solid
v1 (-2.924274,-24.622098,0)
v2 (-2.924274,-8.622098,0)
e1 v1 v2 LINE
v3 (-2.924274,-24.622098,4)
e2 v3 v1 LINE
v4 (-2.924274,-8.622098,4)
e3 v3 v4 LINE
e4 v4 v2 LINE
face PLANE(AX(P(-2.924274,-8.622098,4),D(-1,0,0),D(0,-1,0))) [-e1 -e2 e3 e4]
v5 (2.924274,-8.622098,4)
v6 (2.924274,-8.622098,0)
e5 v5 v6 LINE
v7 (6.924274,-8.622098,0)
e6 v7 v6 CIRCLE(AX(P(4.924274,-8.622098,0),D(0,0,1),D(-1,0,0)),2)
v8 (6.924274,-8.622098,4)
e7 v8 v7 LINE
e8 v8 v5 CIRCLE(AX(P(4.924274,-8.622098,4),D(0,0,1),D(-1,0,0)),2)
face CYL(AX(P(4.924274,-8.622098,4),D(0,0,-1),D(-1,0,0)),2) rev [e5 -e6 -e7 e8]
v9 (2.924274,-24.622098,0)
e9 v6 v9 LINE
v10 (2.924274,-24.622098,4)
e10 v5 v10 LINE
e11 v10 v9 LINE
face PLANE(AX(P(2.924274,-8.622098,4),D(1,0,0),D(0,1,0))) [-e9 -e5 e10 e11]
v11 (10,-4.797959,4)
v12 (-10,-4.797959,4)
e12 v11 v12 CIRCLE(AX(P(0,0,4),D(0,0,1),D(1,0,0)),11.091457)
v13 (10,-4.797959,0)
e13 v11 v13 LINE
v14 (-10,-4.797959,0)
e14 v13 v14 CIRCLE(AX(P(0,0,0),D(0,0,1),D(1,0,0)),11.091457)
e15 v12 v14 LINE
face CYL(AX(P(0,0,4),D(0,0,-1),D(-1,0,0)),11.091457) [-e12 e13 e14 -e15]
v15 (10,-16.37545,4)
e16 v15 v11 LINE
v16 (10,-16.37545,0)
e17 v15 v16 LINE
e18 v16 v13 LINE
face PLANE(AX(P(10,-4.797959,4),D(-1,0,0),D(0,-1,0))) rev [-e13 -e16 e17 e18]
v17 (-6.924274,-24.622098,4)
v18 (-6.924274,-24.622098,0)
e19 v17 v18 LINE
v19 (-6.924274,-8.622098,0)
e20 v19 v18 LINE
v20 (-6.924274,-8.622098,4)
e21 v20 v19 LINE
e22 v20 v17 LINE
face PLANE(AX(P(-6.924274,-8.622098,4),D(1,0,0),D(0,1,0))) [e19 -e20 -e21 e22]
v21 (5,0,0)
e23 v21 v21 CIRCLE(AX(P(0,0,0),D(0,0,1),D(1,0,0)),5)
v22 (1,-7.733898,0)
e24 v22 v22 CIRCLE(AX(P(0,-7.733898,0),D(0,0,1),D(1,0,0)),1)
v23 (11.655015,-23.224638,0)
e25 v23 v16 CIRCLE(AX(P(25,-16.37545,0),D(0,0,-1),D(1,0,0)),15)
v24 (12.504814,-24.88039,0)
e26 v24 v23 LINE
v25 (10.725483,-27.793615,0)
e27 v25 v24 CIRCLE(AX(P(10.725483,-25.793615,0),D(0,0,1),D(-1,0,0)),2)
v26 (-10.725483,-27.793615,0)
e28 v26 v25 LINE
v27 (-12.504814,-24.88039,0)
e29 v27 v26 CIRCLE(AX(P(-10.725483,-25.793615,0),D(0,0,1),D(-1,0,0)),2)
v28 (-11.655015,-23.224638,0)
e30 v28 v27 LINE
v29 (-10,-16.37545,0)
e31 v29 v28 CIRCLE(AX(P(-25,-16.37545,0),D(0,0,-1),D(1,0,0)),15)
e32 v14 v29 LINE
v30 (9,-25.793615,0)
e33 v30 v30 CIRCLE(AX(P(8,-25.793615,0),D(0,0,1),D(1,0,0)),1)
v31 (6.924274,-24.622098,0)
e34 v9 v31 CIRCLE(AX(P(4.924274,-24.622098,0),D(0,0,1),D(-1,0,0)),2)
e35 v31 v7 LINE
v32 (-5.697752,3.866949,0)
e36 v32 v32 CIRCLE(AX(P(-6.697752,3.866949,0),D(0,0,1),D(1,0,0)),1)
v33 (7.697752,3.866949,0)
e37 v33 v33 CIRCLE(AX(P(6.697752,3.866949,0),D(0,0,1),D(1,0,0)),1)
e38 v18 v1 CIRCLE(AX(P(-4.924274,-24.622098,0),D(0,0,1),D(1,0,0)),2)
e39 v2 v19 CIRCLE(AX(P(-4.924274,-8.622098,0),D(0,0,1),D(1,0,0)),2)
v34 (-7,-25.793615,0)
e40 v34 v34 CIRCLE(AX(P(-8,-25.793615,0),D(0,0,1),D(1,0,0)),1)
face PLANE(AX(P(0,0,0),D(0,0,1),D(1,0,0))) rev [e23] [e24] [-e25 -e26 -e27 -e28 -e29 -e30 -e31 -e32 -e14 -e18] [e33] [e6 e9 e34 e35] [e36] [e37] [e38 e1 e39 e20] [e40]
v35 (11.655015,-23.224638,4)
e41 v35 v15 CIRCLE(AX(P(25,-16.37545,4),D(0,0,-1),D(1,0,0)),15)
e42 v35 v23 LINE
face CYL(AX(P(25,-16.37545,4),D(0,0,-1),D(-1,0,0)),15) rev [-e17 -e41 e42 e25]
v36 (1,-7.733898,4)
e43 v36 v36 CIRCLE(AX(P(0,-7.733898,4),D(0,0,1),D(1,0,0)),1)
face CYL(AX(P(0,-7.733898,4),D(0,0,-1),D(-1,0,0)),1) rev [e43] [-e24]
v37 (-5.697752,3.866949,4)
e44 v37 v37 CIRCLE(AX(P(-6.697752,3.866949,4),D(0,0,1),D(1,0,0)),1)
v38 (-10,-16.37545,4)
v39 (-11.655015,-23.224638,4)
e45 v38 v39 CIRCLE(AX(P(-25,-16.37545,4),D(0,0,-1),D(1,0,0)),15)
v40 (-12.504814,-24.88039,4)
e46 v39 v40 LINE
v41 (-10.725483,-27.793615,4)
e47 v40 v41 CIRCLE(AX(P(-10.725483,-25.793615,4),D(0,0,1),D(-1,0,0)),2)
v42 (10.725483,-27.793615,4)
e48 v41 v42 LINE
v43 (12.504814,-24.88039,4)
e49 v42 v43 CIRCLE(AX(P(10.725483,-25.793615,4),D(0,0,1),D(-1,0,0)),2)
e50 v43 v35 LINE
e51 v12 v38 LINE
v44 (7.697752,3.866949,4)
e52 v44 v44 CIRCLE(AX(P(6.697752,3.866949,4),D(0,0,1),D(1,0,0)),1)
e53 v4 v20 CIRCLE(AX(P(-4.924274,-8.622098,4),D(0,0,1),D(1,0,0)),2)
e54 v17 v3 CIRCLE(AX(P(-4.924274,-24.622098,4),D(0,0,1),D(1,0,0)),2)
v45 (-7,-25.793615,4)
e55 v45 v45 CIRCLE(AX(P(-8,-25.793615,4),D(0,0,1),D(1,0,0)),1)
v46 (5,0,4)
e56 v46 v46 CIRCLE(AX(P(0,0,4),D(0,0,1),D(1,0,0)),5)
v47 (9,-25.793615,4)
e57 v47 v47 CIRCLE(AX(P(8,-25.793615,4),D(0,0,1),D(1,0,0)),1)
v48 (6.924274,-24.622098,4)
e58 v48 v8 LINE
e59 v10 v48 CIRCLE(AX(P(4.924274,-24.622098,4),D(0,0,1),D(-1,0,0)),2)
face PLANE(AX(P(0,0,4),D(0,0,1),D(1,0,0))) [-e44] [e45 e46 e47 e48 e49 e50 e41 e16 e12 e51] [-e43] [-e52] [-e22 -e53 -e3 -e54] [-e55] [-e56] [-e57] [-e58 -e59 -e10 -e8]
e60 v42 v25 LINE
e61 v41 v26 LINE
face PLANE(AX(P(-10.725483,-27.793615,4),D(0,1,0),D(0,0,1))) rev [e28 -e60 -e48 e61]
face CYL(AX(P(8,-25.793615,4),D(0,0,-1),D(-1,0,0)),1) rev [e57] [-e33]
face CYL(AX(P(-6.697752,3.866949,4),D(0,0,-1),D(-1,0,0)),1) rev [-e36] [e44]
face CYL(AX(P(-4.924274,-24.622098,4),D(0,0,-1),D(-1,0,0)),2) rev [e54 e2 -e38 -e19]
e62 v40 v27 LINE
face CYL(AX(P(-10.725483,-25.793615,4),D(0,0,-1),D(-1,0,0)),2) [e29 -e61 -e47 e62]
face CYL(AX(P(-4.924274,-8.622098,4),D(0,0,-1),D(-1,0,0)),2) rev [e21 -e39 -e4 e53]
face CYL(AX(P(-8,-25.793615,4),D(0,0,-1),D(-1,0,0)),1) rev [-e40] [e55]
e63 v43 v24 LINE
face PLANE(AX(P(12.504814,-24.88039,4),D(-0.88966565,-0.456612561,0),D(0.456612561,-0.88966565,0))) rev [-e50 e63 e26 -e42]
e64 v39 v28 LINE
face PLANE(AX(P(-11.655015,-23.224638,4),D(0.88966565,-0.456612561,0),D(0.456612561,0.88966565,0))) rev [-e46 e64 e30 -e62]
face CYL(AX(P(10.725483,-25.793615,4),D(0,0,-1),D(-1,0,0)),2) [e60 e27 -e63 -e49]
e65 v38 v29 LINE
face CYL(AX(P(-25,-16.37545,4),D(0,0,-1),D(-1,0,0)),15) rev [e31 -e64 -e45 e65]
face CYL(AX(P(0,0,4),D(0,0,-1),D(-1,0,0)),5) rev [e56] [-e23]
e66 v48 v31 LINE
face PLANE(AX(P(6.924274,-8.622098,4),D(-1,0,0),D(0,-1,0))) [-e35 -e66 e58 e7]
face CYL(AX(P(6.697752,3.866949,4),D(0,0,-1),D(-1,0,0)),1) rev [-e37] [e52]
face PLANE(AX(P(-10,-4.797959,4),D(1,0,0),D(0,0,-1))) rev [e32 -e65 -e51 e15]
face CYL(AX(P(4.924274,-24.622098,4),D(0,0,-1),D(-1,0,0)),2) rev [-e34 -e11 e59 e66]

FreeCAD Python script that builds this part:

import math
import FreeCAD as App
import Part
import Sketcher

V = App.Vector
Q = App.Units.Quantity

doc = App.newDocument("Part")
body = doc.addObject("PartDesign::Body", "Body")

# Sketch on XY plane
sketch1 = body.newObject("Sketcher::SketchObject", "Sketch")
sketch1.AttachmentSupport = (doc.getObject("XY_Plane"), [""])
sketch1.MapMode = "FlatFace"
sketch1.addGeometry(Part.LineSegment(V(10, -16.37545, 0), V(10, -4.797959, 0)), False)
sketch1.addGeometry(Part.ArcOfCircle(Part.Circle(V(0, 0, 0), V(0, 0, 1), 11.091457), math.radians(-25.631501), math.radians(205.631501)), False)
sketch1.addGeometry(Part.LineSegment(V(-10, -4.797959, 0), V(-10, -16.37545, 0)), False)
sketch1.addGeometry(Part.ArcOfCircle(Part.Circle(V(-25, -16.37545, 0), V(0, 0, 1), 15), math.radians(-27.168737), math.radians(0)), False)
sketch1.addGeometry(Part.LineSegment(V(-11.655015, -23.224638, 0), V(-12.504814, -24.88039, 0)), False)
sketch1.addGeometry(Part.ArcOfCircle(Part.Circle(V(-10.725483, -25.793615, 0), V(0, 0, 1), 2), math.radians(152.831263), math.radians(270)), False)
sketch1.addGeometry(Part.LineSegment(V(-10.725483, -27.793615, 0), V(10.725483, -27.793615, 0)), False)
sketch1.addGeometry(Part.ArcOfCircle(Part.Circle(V(10.725483, -25.793615, 0), V(0, 0, 1), 2), math.radians(-90), math.radians(27.168737)), False)
sketch1.addGeometry(Part.LineSegment(V(12.504814, -24.88039, 0), V(11.655015, -23.224638, 0)), False)
sketch1.addGeometry(Part.ArcOfCircle(Part.Circle(V(25, -16.37545, 0), V(0, 0, 1), 15), math.radians(180), math.radians(207.168737)), False)
sketch1.addGeometry(Part.Circle(V(8, -25.793615, 0), V(0, 0, 1), 1), False)
sketch1.addGeometry(Part.ArcOfCircle(Part.Circle(V(4.924274, -8.622098, 0), V(0, 0, 1), 2), math.radians(0), math.radians(180)), False)
sketch1.addGeometry(Part.LineSegment(V(6.924274, -8.622098, 0), V(6.924274, -24.622098, 0)), False)
sketch1.addGeometry(Part.ArcOfCircle(Part.Circle(V(4.924274, -24.622098, 0), V(0, 0, 1), 2), math.radians(180), math.radians(360)), False)
sketch1.addGeometry(Part.LineSegment(V(2.924274, -24.622098, 0), V(2.924274, -8.622098, 0)), False)
sketch1.addGeometry(Part.Circle(V(-8, -25.793615, 0), V(0, 0, 1), 1), False)
sketch1.addGeometry(Part.LineSegment(V(-2.924274, -8.622098, 0), V(-2.924274, -24.622098, 0)), False)
sketch1.addGeometry(Part.ArcOfCircle(Part.Circle(V(-4.924274, -24.622098, 0), V(0, 0, 1), 2), math.radians(180), math.radians(360)), False)
sketch1.addGeometry(Part.LineSegment(V(-6.924274, -24.622098, 0), V(-6.924274, -8.622098, 0)), False)
sketch1.addGeometry(Part.ArcOfCircle(Part.Circle(V(-4.924274, -8.622098, 0), V(0, 0, 1), 2), math.radians(0), math.radians(180)), False)
sketch1.addGeometry(Part.Circle(V(6.697752, 3.866949, 0), V(0, 0, 1), 1), False)
sketch1.addGeometry(Part.Circle(V(0, -7.733898, 0), V(0, 0, 1), 1), False)
sketch1.addGeometry(Part.Circle(V(0, 0, 0), V(0, 0, 1), 5), False)
sketch1.addGeometry(Part.Circle(V(-6.697752, 3.866949, 0), V(0, 0, 1), 1), False)
sketch1.addConstraint(Sketcher.Constraint("Coincident", 0, 2, 1, 1))
sketch1.addConstraint(Sketcher.Constraint("Coincident", 1, 2, 2, 1))
sketch1.addConstraint(Sketcher.Constraint("Tangent", 2, 2, 3, 2))
sketch1.addConstraint(Sketcher.Constraint("Tangent", 3, 1, 4, 1))
sketch1.addConstraint(Sketcher.Constraint("Tangent", 4, 2, 5, 1))
sketch1.addConstraint(Sketcher.Constraint("Tangent", 5, 2, 6, 1))
sketch1.addConstraint(Sketcher.Constraint("Tangent", 6, 2, 7, 1))
sketch1.addConstraint(Sketcher.Constraint("Tangent", 7, 2, 8, 1))
sketch1.addConstraint(Sketcher.Constraint("Tangent", 8, 2, 9, 2))
sketch1.addConstraint(Sketcher.Constraint("Tangent", 9, 1, 0, 1))
sketch1.addConstraint(Sketcher.Constraint("Tangent", 11, 1, 12, 1))
sketch1.addConstraint(Sketcher.Constraint("Tangent", 12, 2, 13, 2))
sketch1.addConstraint(Sketcher.Constraint("Tangent", 13, 1, 14, 1))
sketch1.addConstraint(Sketcher.Constraint("Tangent", 14, 2, 11, 2))
sketch1.addConstraint(Sketcher.Constraint("Tangent", 16, 2, 17, 2))
sketch1.addConstraint(Sketcher.Constraint("Tangent", 17, 1, 18, 1))
sketch1.addConstraint(Sketcher.Constraint("Tangent", 18, 2, 19, 2))
sketch1.addConstraint(Sketcher.Constraint("Tangent", 19, 1, 16, 1))
sketch1.addConstraint(Sketcher.Constraint("Vertical", 0))
sketch1.addConstraint(Sketcher.Constraint("Vertical", 2))
sketch1.addConstraint(Sketcher.Constraint("Horizontal", 6))
sketch1.addConstraint(Sketcher.Constraint("Vertical", 12))
sketch1.addConstraint(Sketcher.Constraint("Vertical", 14))
sketch1.addConstraint(Sketcher.Constraint("Vertical", 16))
sketch1.addConstraint(Sketcher.Constraint("Vertical", 18))
sketch1.addConstraint(Sketcher.Constraint("Coincident", 1, 3, -1, 1))
sketch1.addConstraint(Sketcher.Constraint("Coincident", 22, 3, -1, 1))
sketch1.addConstraint(Sketcher.Constraint("Equal", 5, 7))
sketch1.addConstraint(Sketcher.Constraint("Equal", 3, 9))
sketch1.addConstraint(Sketcher.Constraint("Equal", 7, 11))
sketch1.addConstraint(Sketcher.Constraint("Equal", 10, 15))
sketch1.addConstraint(Sketcher.Constraint("Equal", 13, 17))
sketch1.addConstraint(Sketcher.Constraint("Equal", 15, 20))
sketch1.addConstraint(Sketcher.Constraint("Equal", 20, 21))
sketch1.addConstraint(Sketcher.Constraint("Equal", 21, 23))
sketch1.addConstraint(Sketcher.Constraint("Symmetric", 3, 3, 9, 3, -2))
sketch1.addConstraint(Sketcher.Constraint("Symmetric", 10, 3, 15, 3, -2))
sketch1.addConstraint(Sketcher.Constraint("Symmetric", 13, 3, 17, 3, -2))
sketch1.addConstraint(Sketcher.Constraint("Symmetric", 20, 3, 23, 3, -2))
sketch1.addConstraint(Sketcher.Constraint("PointOnObject", 21, 3, -2))
sketch1.addConstraint(Sketcher.Constraint("Horizontal", 7, 3, 10, 3))
sketch1.addConstraint(Sketcher.Constraint("Horizontal", 11, 3, 19, 3))
sketch1.addConstraint(Sketcher.Constraint("Horizontal", 4, 2, 7, 2))
sketch1.addConstraint(Sketcher.Constraint("Diameter", 10, Q("2 mm")))
sketch1.addConstraint(Sketcher.Constraint("Diameter", 22, Q("10 mm")))
sketch1.addConstraint(Sketcher.Constraint("Radius", 3, Q("15 mm")))
sketch1.addConstraint(Sketcher.Constraint("Radius", 5, Q("2 mm")))
sketch1.addConstraint(Sketcher.Constraint("DistanceY", 12, 2, 12, 1, Q("16 mm")))
sketch1.addConstraint(Sketcher.Constraint("DistanceX", 3, 3, -1, 1, Q("25 mm")))
sketch1.addConstraint(Sketcher.Constraint("DistanceX", -1, 1, 10, 3, Q("8 mm")))
sketch1.addConstraint(Sketcher.Constraint("Radius", 1, Q("11.091457 mm")))
sketch1.addConstraint(Sketcher.Constraint("DistanceY", 0, 1, 0, 2, Q("11.577491 mm")))
sketch1.addConstraint(Sketcher.Constraint("DistanceY", 11, 3, -1, 1, Q("8.622098 mm")))
sketch1.addConstraint(Sketcher.Constraint("DistanceY", 9, 3, 20, 3, Q("20.242399 mm")))
sketch1.addConstraint(Sketcher.Constraint("DistanceY", 11, 3, 21, 3, Q("0.8882 mm")))
sketch1.addConstraint(Sketcher.Constraint("DistanceX", 4, 2, 3, 1, Q("0.849799 mm")))
sketch1.addConstraint(Sketcher.Constraint("DistanceX", 6, 1, 6, 2, Q("21.450966 mm")))
sketch1.addConstraint(Sketcher.Constraint("DistanceX", -1, 1, 20, 3, Q("6.697752 mm")))
sketch1.addConstraint(Sketcher.Constraint("DistanceX", 11, 3, 7, 3, Q("5.801209 mm")))
pad1 = body.newObject("PartDesign::Pad", "Pad")
pad1.Profile = sketch1
pad1.Length = 4

doc.recompute()
